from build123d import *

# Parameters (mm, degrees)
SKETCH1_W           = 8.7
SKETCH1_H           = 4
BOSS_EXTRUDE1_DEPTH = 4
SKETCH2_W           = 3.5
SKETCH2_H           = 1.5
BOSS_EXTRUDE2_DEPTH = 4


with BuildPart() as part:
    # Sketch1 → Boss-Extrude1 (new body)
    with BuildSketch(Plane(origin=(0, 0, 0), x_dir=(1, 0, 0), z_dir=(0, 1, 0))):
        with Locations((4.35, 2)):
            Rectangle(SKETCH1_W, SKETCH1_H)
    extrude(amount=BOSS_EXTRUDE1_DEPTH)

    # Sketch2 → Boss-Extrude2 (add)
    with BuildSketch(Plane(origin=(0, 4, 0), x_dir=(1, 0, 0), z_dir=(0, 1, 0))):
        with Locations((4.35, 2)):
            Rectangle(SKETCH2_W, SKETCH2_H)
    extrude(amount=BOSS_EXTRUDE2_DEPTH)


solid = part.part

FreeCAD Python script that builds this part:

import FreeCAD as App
import Part
import Sketcher
Q = App.Units.Quantity


def add_polygon(sketch, points):
    """Adds a closed chain of lines whose ends are joined by coincident constraints."""
    first, n = sketch.GeometryCount, len(points)
    for a, b in zip(points, points[1:] + points[:1]):
        sketch.addGeometry(Part.LineSegment(App.Vector(*a, 0), App.Vector(*b, 0)), False)
    for i in range(n):
        sketch.addConstraint(Sketcher.Constraint("Coincident", first + i, 2, first + (i + 1) % n, 1))

doc = App.newDocument("Part")
body = doc.addObject("PartDesign::Body", "Body")

# Sketch on XZ plane
sketch1 = body.newObject("Sketcher::SketchObject", "Sketch")
sketch1.AttachmentSupport = (doc.getObject("XZ_Plane"), [""])
sketch1.MapMode = "FlatFace"
add_polygon(sketch1, [(0, -4), (0, 0), (8.7, 0), (8.7, -4)])  # lines 0-3
sketch1.addConstraint([
    Sketcher.Constraint("Vertical", 0),
    Sketcher.Constraint("Horizontal", 1),
    Sketcher.Constraint("Vertical", 2),
    Sketcher.Constraint("Horizontal", 3),
    Sketcher.Constraint("Coincident", 0, 2, -1, 1),
    Sketcher.Constraint("DistanceY", 0, 1, 0, 2, Q("4 mm")),
    Sketcher.Constraint("DistanceX", 1, 1, 1, 2, Q("8.7 mm")),
])
pad1 = body.newObject("PartDesign::Pad", "Pad")
pad1.Profile = sketch1
pad1.Length = 4
pad1.Reversed = True

# Sketch on XZ plane
sketch2 = body.newObject("Sketcher::SketchObject", "Sketch001")
sketch2.AttachmentSupport = (doc.getObject("XZ_Plane"), [""])
sketch2.MapMode = "FlatFace"
sketch2.AttachmentOffset = App.Placement(App.Vector(0, 0, -4), App.Rotation())
add_polygon(sketch2, [(2.6, -2.8), (2.6, -1.2), (6.1, -1.2), (6.1, -2.8)])  # lines 0-3
sketch2.addConstraint([
    Sketcher.Constraint("Vertical", 0),
    Sketcher.Constraint("Horizontal", 1),
    Sketcher.Constraint("Vertical", 2),
    Sketcher.Constraint("Horizontal", 3),
    Sketcher.Constraint("DistanceX", 1, 1, 1, 2, Q("3.5 mm")),
    Sketcher.Constraint("DistanceY", 0, 1, 0, 2, Q("1.5 mm")),
    Sketcher.Constraint("DistanceX", -1, 1, 0, 2, Q("2.6 mm")),
    Sketcher.Constraint("DistanceY", 0, 2, -1, 1, Q("1.25 mm")),
])
pad2 = body.newObject("PartDesign::Pad", "Pad001")
pad2.Profile = sketch2
pad2.Length = 4
pad2.Reversed = True

doc.recompute()
